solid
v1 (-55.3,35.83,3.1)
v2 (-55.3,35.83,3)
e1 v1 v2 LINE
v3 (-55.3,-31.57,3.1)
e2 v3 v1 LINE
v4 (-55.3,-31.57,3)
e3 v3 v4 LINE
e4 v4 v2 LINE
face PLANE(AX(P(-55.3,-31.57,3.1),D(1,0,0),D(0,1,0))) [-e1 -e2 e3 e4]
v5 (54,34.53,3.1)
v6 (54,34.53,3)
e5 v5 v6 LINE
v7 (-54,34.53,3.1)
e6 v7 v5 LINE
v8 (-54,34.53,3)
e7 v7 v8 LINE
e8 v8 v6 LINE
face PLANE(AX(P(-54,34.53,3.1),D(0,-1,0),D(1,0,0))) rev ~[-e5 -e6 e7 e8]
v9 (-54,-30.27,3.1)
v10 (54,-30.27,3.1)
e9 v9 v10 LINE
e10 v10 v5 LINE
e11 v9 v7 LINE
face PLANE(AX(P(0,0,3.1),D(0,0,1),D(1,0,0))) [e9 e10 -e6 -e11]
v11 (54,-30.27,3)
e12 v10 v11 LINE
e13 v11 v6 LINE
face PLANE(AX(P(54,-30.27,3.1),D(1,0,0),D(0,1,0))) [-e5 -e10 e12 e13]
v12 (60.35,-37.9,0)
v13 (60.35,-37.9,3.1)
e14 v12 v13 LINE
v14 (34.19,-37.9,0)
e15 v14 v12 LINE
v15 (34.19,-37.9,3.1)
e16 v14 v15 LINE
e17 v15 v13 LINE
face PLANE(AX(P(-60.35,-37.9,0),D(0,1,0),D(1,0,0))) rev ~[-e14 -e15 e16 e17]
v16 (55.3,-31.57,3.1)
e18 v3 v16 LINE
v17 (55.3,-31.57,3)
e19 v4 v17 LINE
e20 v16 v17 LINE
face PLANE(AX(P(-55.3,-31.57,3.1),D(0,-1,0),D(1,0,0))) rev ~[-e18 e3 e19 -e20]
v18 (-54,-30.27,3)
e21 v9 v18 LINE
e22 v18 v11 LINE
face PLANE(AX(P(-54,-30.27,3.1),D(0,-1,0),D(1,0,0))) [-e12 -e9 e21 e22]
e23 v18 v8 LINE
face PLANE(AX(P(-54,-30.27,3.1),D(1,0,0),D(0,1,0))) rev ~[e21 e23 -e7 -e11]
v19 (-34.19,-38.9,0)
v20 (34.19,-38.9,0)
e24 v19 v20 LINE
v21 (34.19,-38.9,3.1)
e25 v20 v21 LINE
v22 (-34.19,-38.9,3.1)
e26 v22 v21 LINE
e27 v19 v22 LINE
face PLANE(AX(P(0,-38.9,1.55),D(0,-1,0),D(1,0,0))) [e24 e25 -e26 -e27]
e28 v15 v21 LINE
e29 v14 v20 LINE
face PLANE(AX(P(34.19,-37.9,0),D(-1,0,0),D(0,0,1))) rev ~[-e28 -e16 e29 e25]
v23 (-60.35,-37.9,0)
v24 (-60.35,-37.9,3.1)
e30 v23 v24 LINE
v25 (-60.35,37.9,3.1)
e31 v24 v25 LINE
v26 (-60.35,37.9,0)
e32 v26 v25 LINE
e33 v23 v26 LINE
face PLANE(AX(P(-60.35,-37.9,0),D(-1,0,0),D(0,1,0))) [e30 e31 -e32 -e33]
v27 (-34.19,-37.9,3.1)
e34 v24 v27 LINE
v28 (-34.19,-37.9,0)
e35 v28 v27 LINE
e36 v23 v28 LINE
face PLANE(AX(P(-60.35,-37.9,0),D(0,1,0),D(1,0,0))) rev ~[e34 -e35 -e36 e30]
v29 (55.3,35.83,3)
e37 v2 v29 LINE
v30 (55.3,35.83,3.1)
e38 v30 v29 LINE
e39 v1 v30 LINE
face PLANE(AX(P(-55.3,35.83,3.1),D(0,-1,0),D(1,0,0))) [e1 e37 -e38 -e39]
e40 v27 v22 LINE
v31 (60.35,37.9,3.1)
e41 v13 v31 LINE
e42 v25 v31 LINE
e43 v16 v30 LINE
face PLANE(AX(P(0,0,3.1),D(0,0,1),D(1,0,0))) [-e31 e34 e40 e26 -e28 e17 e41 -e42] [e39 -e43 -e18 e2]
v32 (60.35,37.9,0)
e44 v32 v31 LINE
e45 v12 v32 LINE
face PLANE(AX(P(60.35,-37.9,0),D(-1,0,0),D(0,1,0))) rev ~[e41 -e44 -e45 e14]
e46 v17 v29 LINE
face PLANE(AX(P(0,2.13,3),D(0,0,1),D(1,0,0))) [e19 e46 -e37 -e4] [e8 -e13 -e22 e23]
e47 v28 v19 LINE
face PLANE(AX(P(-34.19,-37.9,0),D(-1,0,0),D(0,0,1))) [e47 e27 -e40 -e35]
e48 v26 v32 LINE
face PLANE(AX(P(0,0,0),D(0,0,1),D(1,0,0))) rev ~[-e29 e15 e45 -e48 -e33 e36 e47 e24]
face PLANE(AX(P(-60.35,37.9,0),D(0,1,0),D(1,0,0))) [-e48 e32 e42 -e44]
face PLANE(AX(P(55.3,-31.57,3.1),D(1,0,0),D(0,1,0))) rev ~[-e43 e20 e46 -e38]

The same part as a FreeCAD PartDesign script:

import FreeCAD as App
import Part
import Sketcher

V = App.Vector
Q = App.Units.Quantity

doc = App.newDocument("Part")
body = doc.addObject("PartDesign::Body", "Body")

# Sketch on XY plane
sketch1 = body.newObject("Sketcher::SketchObject", "Sketch")
sketch1.AttachmentSupport = (doc.getObject("XY_Plane"), [""])
sketch1.MapMode = "FlatFace"
sketch1.addGeometry([
    Part.LineSegment(V(-60.35, 37.9, 0), V(-60.35, -37.9, 0)),
    Part.LineSegment(V(-60.35, -37.9, 0), V(60.35, -37.9, 0)),
    Part.LineSegment(V(60.35, -37.9, 0), V(60.35, 37.9, 0)),
    Part.LineSegment(V(60.35, 37.9, 0), V(-60.35, 37.9, 0)),
], False)
sketch1.addConstraint([
    Sketcher.Constraint("Coincident", 0, 2, 1, 1),
    Sketcher.Constraint("Coincident", 1, 2, 2, 1),
    Sketcher.Constraint("Coincident", 2, 2, 3, 1),
    Sketcher.Constraint("Coincident", 3, 2, 0, 1),
    Sketcher.Constraint("Vertical", 0),
    Sketcher.Constraint("Horizontal", 1),
    Sketcher.Constraint("Vertical", 2),
    Sketcher.Constraint("Horizontal", 3),
    Sketcher.Constraint("Symmetric", 0, 2, 2, 2, -1, 1),
    Sketcher.Constraint("DistanceX", 1, 1, 1, 2, Q("120.7 mm")),
    Sketcher.Constraint("DistanceY", 0, 2, 0, 1, Q("75.8 mm")),
])
pad1 = body.newObject("PartDesign::Pad", "Pad")
pad1.Profile = sketch1
pad1.Length = 3.1

# Sketch on XY plane
sketch2 = body.newObject("Sketcher::SketchObject", "Sketch001")
sketch2.AttachmentSupport = (doc.getObject("XY_Plane"), [""])
sketch2.MapMode = "FlatFace"
sketch2.AttachmentOffset = App.Placement(V(0, 0, 3.1), App.Rotation())
sketch2.addGeometry([
    Part.LineSegment(V(-55.3, 35.83, 0), V(-55.3, -31.57, 0)),  # 0
    Part.LineSegment(V(-55.3, -31.57, 0), V(55.3, -31.57, 0)),  # 1
    Part.LineSegment(V(55.3, -31.57, 0), V(55.3, 35.83, 0)),  # 2
    Part.LineSegment(V(55.3, 35.83, 0), V(-55.3, 35.83, 0)),  # 3
    Part.LineSegment(V(54, -30.27, 0), V(-54, -30.27, 0)),  # 4
    Part.LineSegment(V(-54, -30.27, 0), V(-54, 34.53, 0)),  # 5
    Part.LineSegment(V(-54, 34.53, 0), V(54, 34.53, 0)),  # 6
    Part.LineSegment(V(54, 34.53, 0), V(54, -30.27, 0)),  # 7
], False)
sketch2.addConstraint([
    Sketcher.Constraint("Coincident", 0, 2, 1, 1),
    Sketcher.Constraint("Coincident", 1, 2, 2, 1),
    Sketcher.Constraint("Coincident", 2, 2, 3, 1),
    Sketcher.Constraint("Coincident", 3, 2, 0, 1),
    Sketcher.Constraint("Coincident", 4, 2, 5, 1),
    Sketcher.Constraint("Coincident", 5, 2, 6, 1),
    Sketcher.Constraint("Coincident", 6, 2, 7, 1),
    Sketcher.Constraint("Coincident", 7, 2, 4, 1),
    Sketcher.Constraint("Vertical", 0),
    Sketcher.Constraint("Horizontal", 1),
    Sketcher.Constraint("Vertical", 2),
    Sketcher.Constraint("Horizontal", 3),
    Sketcher.Constraint("Horizontal", 4),
    Sketcher.Constraint("Vertical", 5),
    Sketcher.Constraint("Horizontal", 6),
    Sketcher.Constraint("Vertical", 7),
    Sketcher.Constraint("DistanceX", 4, 2, 4, 1, Q("108 mm")),
    Sketcher.Constraint("DistanceX", 1, 1, 1, 2, Q("110.6 mm")),
    Sketcher.Constraint("DistanceY", 0, 2, 0, 1, Q("67.4 mm")),
    Sketcher.Constraint("DistanceY", 5, 1, 5, 2, Q("64.8 mm")),
    Sketcher.Constraint("DistanceX", 4, 2, -1, 1, Q("54 mm")),
    Sketcher.Constraint("DistanceX", 0, 2, -1, 1, Q("55.3 mm")),
    Sketcher.Constraint("DistanceY", 0, 2, 4, 2, Q("1.3 mm")),
    Sketcher.Constraint("DistanceY", 0, 2, -1, 1, Q("31.57 mm")),
])
pocket1 = body.newObject("PartDesign::Pocket", "Pocket")
pocket1.Profile = sketch2
pocket1.Length = 0.1

# Sketch on XZ plane
sketch3 = body.newObject("Sketcher::SketchObject", "Sketch002")
sketch3.AttachmentSupport = (doc.getObject("XZ_Plane"), [""])
sketch3.MapMode = "FlatFace"
sketch3.AttachmentOffset = App.Placement(V(0, 0, 37.9), App.Rotation())
sketch3.addGeometry([
    Part.LineSegment(V(-34.19, 3.1, 0), V(-34.19, 0, 0)),
    Part.LineSegment(V(-34.19, 0, 0), V(34.19, 0, 0)),
    Part.LineSegment(V(34.19, 0, 0), V(34.19, 3.1, 0)),
    Part.LineSegment(V(34.19, 3.1, 0), V(-34.19, 3.1, 0)),
], False)
sketch3.addConstraint([
    Sketcher.Constraint("Coincident", 0, 2, 1, 1),
    Sketcher.Constraint("Coincident", 1, 2, 2, 1),
    Sketcher.Constraint("Coincident", 2, 2, 3, 1),
    Sketcher.Constraint("Coincident", 3, 2, 0, 1),
    Sketcher.Constraint("Vertical", 0),
    Sketcher.Constraint("Horizontal", 1),
    Sketcher.Constraint("Vertical", 2),
    Sketcher.Constraint("Horizontal", 3),
    Sketcher.Constraint("Symmetric", 0, 2, 1, 2, -1, 1),
    Sketcher.Constraint("DistanceY", 0, 2, 0, 1, Q("3.1 mm")),
    Sketcher.Constraint("DistanceX", 1, 1, 1, 2, Q("68.38 mm")),
])
pad2 = body.newObject("PartDesign::Pad", "Pad001")
pad2.Profile = sketch3
pad2.Length = 1

doc.recompute()
